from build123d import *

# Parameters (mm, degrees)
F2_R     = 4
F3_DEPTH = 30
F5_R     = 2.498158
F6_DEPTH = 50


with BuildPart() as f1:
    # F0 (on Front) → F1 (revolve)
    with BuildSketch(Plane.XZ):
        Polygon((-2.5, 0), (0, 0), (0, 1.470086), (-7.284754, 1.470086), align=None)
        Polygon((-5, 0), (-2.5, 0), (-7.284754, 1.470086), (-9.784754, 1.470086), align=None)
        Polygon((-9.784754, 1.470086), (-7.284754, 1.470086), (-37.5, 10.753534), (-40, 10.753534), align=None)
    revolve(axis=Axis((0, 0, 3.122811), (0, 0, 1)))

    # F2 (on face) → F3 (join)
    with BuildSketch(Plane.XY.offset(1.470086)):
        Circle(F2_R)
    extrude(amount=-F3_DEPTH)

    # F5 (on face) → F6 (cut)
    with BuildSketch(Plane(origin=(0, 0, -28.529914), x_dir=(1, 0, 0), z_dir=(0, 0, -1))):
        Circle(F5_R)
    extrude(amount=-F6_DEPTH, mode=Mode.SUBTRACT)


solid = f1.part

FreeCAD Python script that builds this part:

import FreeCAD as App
import Part
import Sketcher

V = App.Vector
Q = App.Units.Quantity

doc = App.newDocument("Part")
body = doc.addObject("PartDesign::Body", "Body")

sketch1 = body.newObject("Sketcher::SketchObject", "Sketch")
sketch1.AttachmentSupport = (doc.getObject("XZ_Plane"), [""])
sketch1.MapMode = "FlatFace"
sketch1.addGeometry([
    Part.LineSegment(V(0, 0, 0), V(0, 1.5, 0)),
    Part.LineSegment(V(0, 1.5, 0), V(-7.3, 1.5, 0)),
    Part.LineSegment(V(-7.3, 1.5, 0), V(-37.5, 10.8, 0)),
    Part.LineSegment(V(-37.5, 10.8, 0), V(-40, 10.8, 0)),
    Part.LineSegment(V(-40, 10.8, 0), V(-9.8, 1.5, 0)),
    Part.LineSegment(V(-9.8, 1.5, 0), V(-5, 0, 0)),
    Part.LineSegment(V(-5, 0, 0), V(0, 0, 0)),
], False)
sketch1.addConstraint([
    Sketcher.Constraint("Coincident", 0, 2, 1, 1),
    Sketcher.Constraint("Coincident", 1, 2, 2, 1),
    Sketcher.Constraint("Coincident", 2, 2, 3, 1),
    Sketcher.Constraint("Coincident", 3, 2, 4, 1),
    Sketcher.Constraint("Coincident", 4, 2, 5, 1),
    Sketcher.Constraint("Coincident", 5, 2, 6, 1),
    Sketcher.Constraint("Coincident", 6, 2, 0, 1),
    Sketcher.Constraint("Vertical", 0),
    Sketcher.Constraint("Horizontal", 1),
    Sketcher.Constraint("Horizontal", 3),
    Sketcher.Constraint("Horizontal", 6),
    Sketcher.Constraint("Coincident", 6, 2, -1, 1),
    Sketcher.Constraint("Parallel", 2, 4),
    Sketcher.Constraint("Parallel", 4, 5),
    Sketcher.Constraint("Horizontal", 1, 2, 4, 2),
    Sketcher.Constraint("DistanceX", 6, 1, 6, 2, Q("5 mm")),
    Sketcher.Constraint("DistanceX", 3, 2, 3, 1, Q("2.5 mm")),
    Sketcher.Constraint("DistanceX", 3, 2, -1, 1, Q("40 mm")),
    Sketcher.Constraint("Distance", 5, Q("5.005499 mm")),
    Sketcher.Constraint("Distance", 2, Q("31.609231 mm")),
])
revolution = body.newObject("PartDesign::Revolution", "Revolution")
revolution.Profile = sketch1
revolution.ReferenceAxis = (sketch1, ["V_Axis"])
revolution.Angle = 360

sketch2 = body.newObject("Sketcher::SketchObject", "Sketch001")
sketch2.AttachmentSupport = (doc.getObject("XY_Plane"), [""])
sketch2.MapMode = "FlatFace"
sketch2.AttachmentOffset = App.Placement(V(0, 0, 1.470086), App.Rotation())
sketch2.addGeometry(Part.Circle(V(0, 0, 0), V(0, 0, 1), 4), False)
sketch2.addConstraint([
    Sketcher.Constraint("Coincident", 0, 3, -1, 1),
    Sketcher.Constraint("Diameter", 0, Q("8 mm")),
])
pad1 = body.newObject("PartDesign::Pad", "Pad")
pad1.Profile = sketch2
pad1.Length = 30
pad1.Reversed = True

sketch3 = body.newObject("Sketcher::SketchObject", "Sketch002")
sketch3.AttachmentSupport = (doc.getObject("XY_Plane"), [""])
sketch3.MapMode = "FlatFace"
sketch3.AttachmentOffset = App.Placement(V(0, 0, -28.529914), App.Rotation())
sketch3.addGeometry(Part.Circle(V(0, 0, 0), V(0, 0, 1), 2.5), False)
sketch3.addConstraint([
    Sketcher.Constraint("Coincident", 0, 3, -1, 1),
    Sketcher.Constraint("Diameter", 0, Q("4.996316 mm")),
])
pocket1 = body.newObject("PartDesign::Pocket", "Pocket")
pocket1.Profile = sketch3
pocket1.Length = 50
pocket1.Reversed = True

doc.recompute()
